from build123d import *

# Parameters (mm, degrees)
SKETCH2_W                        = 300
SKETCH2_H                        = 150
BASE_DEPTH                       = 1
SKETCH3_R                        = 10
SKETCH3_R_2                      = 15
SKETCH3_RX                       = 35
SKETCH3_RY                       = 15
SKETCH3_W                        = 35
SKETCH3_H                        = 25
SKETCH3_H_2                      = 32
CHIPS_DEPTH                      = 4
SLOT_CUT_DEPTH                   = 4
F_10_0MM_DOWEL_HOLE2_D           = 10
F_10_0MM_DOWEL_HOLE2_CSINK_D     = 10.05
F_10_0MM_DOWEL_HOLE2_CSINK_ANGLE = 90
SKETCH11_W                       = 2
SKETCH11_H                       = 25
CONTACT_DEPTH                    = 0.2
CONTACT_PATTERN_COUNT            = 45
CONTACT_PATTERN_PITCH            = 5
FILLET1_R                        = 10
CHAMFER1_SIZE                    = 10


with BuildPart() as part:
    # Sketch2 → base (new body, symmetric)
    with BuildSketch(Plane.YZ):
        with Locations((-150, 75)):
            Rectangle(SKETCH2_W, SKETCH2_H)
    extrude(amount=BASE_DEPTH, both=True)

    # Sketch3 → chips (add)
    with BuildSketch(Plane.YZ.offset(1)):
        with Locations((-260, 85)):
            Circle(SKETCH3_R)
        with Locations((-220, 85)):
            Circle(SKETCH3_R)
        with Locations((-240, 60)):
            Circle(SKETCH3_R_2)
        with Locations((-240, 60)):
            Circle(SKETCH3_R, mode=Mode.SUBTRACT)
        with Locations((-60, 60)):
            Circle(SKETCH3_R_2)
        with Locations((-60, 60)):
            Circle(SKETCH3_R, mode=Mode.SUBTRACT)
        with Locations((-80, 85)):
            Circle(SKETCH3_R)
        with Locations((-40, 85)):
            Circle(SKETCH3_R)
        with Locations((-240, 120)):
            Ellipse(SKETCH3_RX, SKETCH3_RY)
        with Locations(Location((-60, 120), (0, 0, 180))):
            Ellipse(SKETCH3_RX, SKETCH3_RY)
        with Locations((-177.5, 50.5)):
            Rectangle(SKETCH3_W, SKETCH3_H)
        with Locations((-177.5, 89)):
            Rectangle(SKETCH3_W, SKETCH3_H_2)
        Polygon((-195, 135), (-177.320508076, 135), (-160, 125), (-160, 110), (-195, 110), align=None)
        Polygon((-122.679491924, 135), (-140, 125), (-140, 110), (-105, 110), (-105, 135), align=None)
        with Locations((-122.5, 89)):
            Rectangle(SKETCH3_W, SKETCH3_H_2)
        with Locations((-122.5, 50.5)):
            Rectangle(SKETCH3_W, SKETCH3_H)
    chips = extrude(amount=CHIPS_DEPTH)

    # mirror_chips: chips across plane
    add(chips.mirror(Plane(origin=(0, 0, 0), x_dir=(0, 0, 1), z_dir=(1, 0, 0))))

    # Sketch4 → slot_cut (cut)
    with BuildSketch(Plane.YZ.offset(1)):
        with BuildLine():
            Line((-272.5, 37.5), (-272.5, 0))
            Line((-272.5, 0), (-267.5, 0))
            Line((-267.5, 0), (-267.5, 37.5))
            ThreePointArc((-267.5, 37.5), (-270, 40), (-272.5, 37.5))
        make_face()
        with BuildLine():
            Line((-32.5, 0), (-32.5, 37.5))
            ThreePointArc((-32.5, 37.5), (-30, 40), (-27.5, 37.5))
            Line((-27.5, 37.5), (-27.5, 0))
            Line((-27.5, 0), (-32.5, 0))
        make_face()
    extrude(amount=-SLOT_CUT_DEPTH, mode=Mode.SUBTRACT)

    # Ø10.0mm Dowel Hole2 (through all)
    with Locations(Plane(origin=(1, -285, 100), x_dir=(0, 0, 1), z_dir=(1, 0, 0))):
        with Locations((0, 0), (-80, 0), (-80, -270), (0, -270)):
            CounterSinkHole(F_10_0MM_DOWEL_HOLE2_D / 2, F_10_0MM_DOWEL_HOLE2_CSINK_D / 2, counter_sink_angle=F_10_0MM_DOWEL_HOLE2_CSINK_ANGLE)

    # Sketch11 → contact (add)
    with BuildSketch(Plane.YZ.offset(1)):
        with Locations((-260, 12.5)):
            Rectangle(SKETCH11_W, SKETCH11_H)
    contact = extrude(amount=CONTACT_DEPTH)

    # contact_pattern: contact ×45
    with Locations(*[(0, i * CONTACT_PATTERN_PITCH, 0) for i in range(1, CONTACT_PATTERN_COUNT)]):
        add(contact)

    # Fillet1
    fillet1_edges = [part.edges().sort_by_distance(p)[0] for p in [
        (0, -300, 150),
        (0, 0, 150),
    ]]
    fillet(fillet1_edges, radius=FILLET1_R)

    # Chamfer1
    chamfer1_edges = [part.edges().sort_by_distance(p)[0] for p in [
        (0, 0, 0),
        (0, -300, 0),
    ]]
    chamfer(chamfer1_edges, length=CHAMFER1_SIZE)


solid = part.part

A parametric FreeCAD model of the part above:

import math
import FreeCAD as App
import Part
import Sketcher

V = App.Vector
Q = App.Units.Quantity


def edges_at(feature, points):
    """Names of the edges that pass closest to the given points."""
    edges = feature.Shape.Edges
    near = lambda p: min(range(len(edges)), key=lambda i: edges[i].distToShape(Part.Vertex(*p))[0])
    return sorted({f"Edge{near(p) + 1}" for p in points})


def add_polygon(sketch, points):
    """Adds a closed chain of lines whose ends are joined by coincident constraints."""
    first, n = sketch.GeometryCount, len(points)
    for a, b in zip(points, points[1:] + points[:1]):
        sketch.addGeometry(Part.LineSegment(App.Vector(*a, 0), App.Vector(*b, 0)), False)
    for i in range(n):
        sketch.addConstraint(Sketcher.Constraint("Coincident", first + i, 2, first + (i + 1) % n, 1))

doc = App.newDocument("Part")
body = doc.addObject("PartDesign::Body", "Body")

# Sketch on YZ plane
sketch1 = body.newObject("Sketcher::SketchObject", "Sketch")
sketch1.AttachmentSupport = (doc.getObject("YZ_Plane"), [""])
sketch1.MapMode = "FlatFace"
add_polygon(sketch1, [(-300, 150), (-300, 0), (0, 0), (0, 150)])  # lines 0-3
sketch1.addConstraint(Sketcher.Constraint("Vertical", 0))
sketch1.addConstraint(Sketcher.Constraint("Horizontal", 1))
sketch1.addConstraint(Sketcher.Constraint("Vertical", 2))
sketch1.addConstraint(Sketcher.Constraint("Horizontal", 3))
sketch1.addConstraint(Sketcher.Constraint("Coincident", 1, 2, -1, 1))
sketch1.addConstraint(Sketcher.Constraint("DistanceX", 1, 1, 1, 2, Q("300 mm")))
sketch1.addConstraint(Sketcher.Constraint("DistanceY", 0, 2, 0, 1, Q("150 mm")))
pad1 = body.newObject("PartDesign::Pad", "Pad")
pad1.Profile = sketch1
pad1.Length = 2
pad1.Midplane = True

# Sketch on YZ plane
sketch2 = body.newObject("Sketcher::SketchObject", "Sketch001")
sketch2.AttachmentSupport = (doc.getObject("YZ_Plane"), [""])
sketch2.MapMode = "FlatFace"
sketch2.AttachmentOffset = App.Placement(V(0, 0, 1), App.Rotation())
sketch2.addGeometry(Part.Circle(V(-260, 85, 0), V(0, 0, 1), 10), False)  # 0
sketch2.addGeometry(Part.Circle(V(-220, 85, 0), V(0, 0, 1), 10), False)  # 1
sketch2.addGeometry(Part.Circle(V(-240, 60, 0), V(0, 0, 1), 15), False)  # 2
sketch2.addGeometry(Part.Circle(V(-240, 60, 0), V(0, 0, 1), 10), False)  # 3
sketch2.addGeometry(Part.Circle(V(-60, 60, 0), V(0, 0, 1), 15), False)  # 4
sketch2.addGeometry(Part.Circle(V(-60, 60, 0), V(0, 0, 1), 10), False)  # 5
sketch2.addGeometry(Part.Circle(V(-80, 85, 0), V(0, 0, 1), 10), False)  # 6
sketch2.addGeometry(Part.Circle(V(-40, 85, 0), V(0, 0, 1), 10), False)  # 7
sketch2.addGeometry(Part.Ellipse(V(-205, 120, 0), V(-240, 135, 0), V(-240, 120, 0)), False)  # 8
sketch2.addGeometry(Part.Ellipse(V(-95, 120, 0), V(-60, 105, 0), V(-60, 120, 0)), False)  # 9
add_polygon(sketch2, [(-195, 63), (-195, 38), (-160, 38), (-160, 63)])  # lines 10-13
add_polygon(sketch2, [(-195, 105), (-195, 73), (-160, 73), (-160, 105)])  # lines 14-17
add_polygon(sketch2, [(-177.320508, 135), (-195, 135), (-195, 110), (-160, 110), (-160, 125)])  # lines 18-22
add_polygon(sketch2, [(-122.679492, 135), (-140, 125), (-140, 110), (-105, 110), (-105, 135)])  # lines 23-27
add_polygon(sketch2, [(-140, 105), (-140, 73), (-105, 73), (-105, 105)])  # lines 28-31
add_polygon(sketch2, [(-140, 63), (-140, 38), (-105, 38), (-105, 63)])  # lines 32-35
sketch2.addConstraint(Sketcher.Constraint("Block", 8))
sketch2.addConstraint(Sketcher.Constraint("Block", 9))
sketch2.addConstraint(Sketcher.Constraint("Vertical", 10))
sketch2.addConstraint(Sketcher.Constraint("Horizontal", 11))
sketch2.addConstraint(Sketcher.Constraint("Vertical", 12))
sketch2.addConstraint(Sketcher.Constraint("Horizontal", 13))
sketch2.addConstraint(Sketcher.Constraint("Vertical", 14))
sketch2.addConstraint(Sketcher.Constraint("Horizontal", 15))
sketch2.addConstraint(Sketcher.Constraint("Vertical", 16))
sketch2.addConstraint(Sketcher.Constraint("Horizontal", 17))
sketch2.addConstraint(Sketcher.Constraint("Horizontal", 18))
sketch2.addConstraint(Sketcher.Constraint("Vertical", 19))
sketch2.addConstraint(Sketcher.Constraint("Horizontal", 20))
sketch2.addConstraint(Sketcher.Constraint("Vertical", 21))
sketch2.addConstraint(Sketcher.Constraint("Vertical", 24))
sketch2.addConstraint(Sketcher.Constraint("Horizontal", 25))
sketch2.addConstraint(Sketcher.Constraint("Vertical", 26))
sketch2.addConstraint(Sketcher.Constraint("Horizontal", 27))
sketch2.addConstraint(Sketcher.Constraint("Vertical", 28))
sketch2.addConstraint(Sketcher.Constraint("Horizontal", 29))
sketch2.addConstraint(Sketcher.Constraint("Vertical", 30))
sketch2.addConstraint(Sketcher.Constraint("Horizontal", 31))
sketch2.addConstraint(Sketcher.Constraint("Vertical", 32))
sketch2.addConstraint(Sketcher.Constraint("Horizontal", 33))
sketch2.addConstraint(Sketcher.Constraint("Vertical", 34))
sketch2.addConstraint(Sketcher.Constraint("Horizontal", 35))
sketch2.addConstraint(Sketcher.Constraint("Coincident", 3, 3, 2, 3))
sketch2.addConstraint(Sketcher.Constraint("Coincident", 5, 3, 4, 3))
sketch2.addConstraint(Sketcher.Constraint("Equal", 0, 1))
sketch2.addConstraint(Sketcher.Constraint("Equal", 1, 3))
sketch2.addConstraint(Sketcher.Constraint("Equal", 2, 4))
sketch2.addConstraint(Sketcher.Constraint("Equal", 3, 5))
sketch2.addConstraint(Sketcher.Constraint("Equal", 5, 6))
sketch2.addConstraint(Sketcher.Constraint("Equal", 6, 7))
sketch2.addConstraint(Sketcher.Constraint("Horizontal", 0, 3, 1, 3))
sketch2.addConstraint(Sketcher.Constraint("Horizontal", 3, 3, 4, 3))
sketch2.addConstraint(Sketcher.Constraint("Horizontal", 1, 3, 6, 3))
sketch2.addConstraint(Sketcher.Constraint("Horizontal", 6, 3, 7, 3))
sketch2.addConstraint(Sketcher.Constraint("Horizontal", 21, 2, 23, 2))
sketch2.addConstraint(Sketcher.Constraint("Horizontal", 20, 2, 24, 2))
sketch2.addConstraint(Sketcher.Constraint("Horizontal", 22, 2, 26, 2))
sketch2.addConstraint(Sketcher.Constraint("Horizontal", 15, 2, 28, 2))
sketch2.addConstraint(Sketcher.Constraint("Horizontal", 17, 2, 30, 2))
sketch2.addConstraint(Sketcher.Constraint("Horizontal", 11, 2, 32, 2))
sketch2.addConstraint(Sketcher.Constraint("Horizontal", 13, 2, 34, 2))
sketch2.addConstraint(Sketcher.Constraint("Vertical", 13, 2, 14, 2))
sketch2.addConstraint(Sketcher.Constraint("Vertical", 12, 2, 15, 2))
sketch2.addConstraint(Sketcher.Constraint("Vertical", 17, 2, 18, 2))
sketch2.addConstraint(Sketcher.Constraint("Vertical", 16, 2, 20, 2))
sketch2.addConstraint(Sketcher.Constraint("Vertical", 24, 2, 28, 2))
sketch2.addConstraint(Sketcher.Constraint("Vertical", 26, 2, 29, 2))
sketch2.addConstraint(Sketcher.Constraint("Vertical", 31, 2, 32, 2))
sketch2.addConstraint(Sketcher.Constraint("Vertical", 30, 2, 33, 2))
sketch2.addConstraint(Sketcher.Constraint("Equal", 20, 25))
sketch2.addConstraint(Sketcher.Constraint("Equal", 18, 27))
sketch2.addConstraint(Sketcher.Constraint("Equal", 12, 19))
sketch2.addConstraint(Sketcher.Constraint("Diameter", 0, Q("20 mm")))
sketch2.addConstraint(Sketcher.Constraint("Diameter", 2, Q("30 mm")))
sketch2.addConstraint(Sketcher.Constraint("DistanceX", 11, 1, 11, 2, Q("35 mm")))
sketch2.addConstraint(Sketcher.Constraint("DistanceY", 10, 2, 10, 1, Q("25 mm")))
sketch2.addConstraint(Sketcher.Constraint("DistanceY", 14, 2, 14, 1, Q("32 mm")))
sketch2.addConstraint(Sketcher.Constraint("DistanceY", 21, 1, 21, 2, Q("15 mm")))
sketch2.addConstraint(Sketcher.Constraint("Angle", 22, Q("150 deg")))
sketch2.addConstraint(Sketcher.Constraint("DistanceX", 0, 3, -1, 1, Q("260 mm")))
sketch2.addConstraint(Sketcher.Constraint("DistanceY", -1, 1, 0, 3, Q("85 mm")))
sketch2.addConstraint(Sketcher.Constraint("DistanceX", 1, 3, -1, 1, Q("220 mm")))
sketch2.addConstraint(Sketcher.Constraint("DistanceX", 2, 3, -1, 1, Q("240 mm")))
sketch2.addConstraint(Sketcher.Constraint("DistanceY", -1, 1, 2, 3, Q("60 mm")))
sketch2.addConstraint(Sketcher.Constraint("DistanceX", 4, 3, -1, 1, Q("60 mm")))
sketch2.addConstraint(Sketcher.Constraint("DistanceX", 6, 3, -1, 1, Q("80 mm")))
sketch2.addConstraint(Sketcher.Constraint("DistanceX", 7, 3, -1, 1, Q("40 mm")))
sketch2.addConstraint(Sketcher.Constraint("DistanceX", 10, 2, -1, 1, Q("195 mm")))
sketch2.addConstraint(Sketcher.Constraint("DistanceY", -1, 1, 10, 2, Q("38 mm")))
sketch2.addConstraint(Sketcher.Constraint("DistanceY", -1, 1, 14, 2, Q("73 mm")))
sketch2.addConstraint(Sketcher.Constraint("DistanceY", -1, 1, 18, 2, Q("135 mm")))
sketch2.addConstraint(Sketcher.Constraint("DistanceX", 23, 2, -1, 1, Q("140 mm")))
pad2 = body.newObject("PartDesign::Pad", "Pad001")
pad2.Profile = sketch2
pad2.Length = 4
doc.recompute()

mirrored = body.newObject("PartDesign::Mirrored", "Mirrored")
mirrored.Originals = [pad2]
mirrored.MirrorPlane = (doc.getObject("YZ_Plane"), [""])
body.Tip = mirrored

# Sketch on YZ plane
sketch3 = body.newObject("Sketcher::SketchObject", "Sketch002")
sketch3.AttachmentSupport = (doc.getObject("YZ_Plane"), [""])
sketch3.MapMode = "FlatFace"
sketch3.AttachmentOffset = App.Placement(V(0, 0, 1), App.Rotation())
sketch3.addGeometry(Part.LineSegment(V(-272.5, 37.5, 0), V(-272.5, 0, 0)), False)
sketch3.addGeometry(Part.LineSegment(V(-272.5, 0, 0), V(-267.5, 0, 0)), False)
sketch3.addGeometry(Part.LineSegment(V(-267.5, 0, 0), V(-267.5, 37.5, 0)), False)
sketch3.addGeometry(Part.ArcOfCircle(Part.Circle(V(-270, 37.5, 0), V(0, 0, 1), 2.5), math.radians(0), math.radians(180)), False)
sketch3.addGeometry(Part.LineSegment(V(-32.5, 37.5, 0), V(-32.5, 0, 0)), False)
sketch3.addGeometry(Part.LineSegment(V(-32.5, 0, 0), V(-27.5, 0, 0)), False)
sketch3.addGeometry(Part.LineSegment(V(-27.5, 0, 0), V(-27.5, 37.5, 0)), False)
sketch3.addGeometry(Part.ArcOfCircle(Part.Circle(V(-30, 37.5, 0), V(0, 0, 1), 2.5), math.radians(0), math.radians(180)), False)
sketch3.addConstraint(Sketcher.Constraint("Coincident", 0, 2, 1, 1))
sketch3.addConstraint(Sketcher.Constraint("Coincident", 1, 2, 2, 1))
sketch3.addConstraint(Sketcher.Constraint("Tangent", 2, 2, 3, 1))
sketch3.addConstraint(Sketcher.Constraint("Tangent", 3, 2, 0, 1))
sketch3.addConstraint(Sketcher.Constraint("Coincident", 4, 2, 5, 1))
sketch3.addConstraint(Sketcher.Constraint("Coincident", 5, 2, 6, 1))
sketch3.addConstraint(Sketcher.Constraint("Tangent", 6, 2, 7, 1))
sketch3.addConstraint(Sketcher.Constraint("Tangent", 7, 2, 4, 1))
sketch3.addConstraint(Sketcher.Constraint("Vertical", 0))
sketch3.addConstraint(Sketcher.Constraint("Horizontal", 1))
sketch3.addConstraint(Sketcher.Constraint("Vertical", 2))
sketch3.addConstraint(Sketcher.Constraint("Vertical", 4))
sketch3.addConstraint(Sketcher.Constraint("Horizontal", 5))
sketch3.addConstraint(Sketcher.Constraint("Vertical", 6))
sketch3.addConstraint(Sketcher.Constraint("Equal", 3, 7))
sketch3.addConstraint(Sketcher.Constraint("PointOnObject", 0, 2, -1))
sketch3.addConstraint(Sketcher.Constraint("PointOnObject", 4, 2, -1))
sketch3.addConstraint(Sketcher.Constraint("Horizontal", 3, 3, 7, 3))
sketch3.addConstraint(Sketcher.Constraint("Radius", 3, Q("2.5 mm")))
sketch3.addConstraint(Sketcher.Constraint("DistanceY", 0, 2, 0, 1, Q("37.5 mm")))
sketch3.addConstraint(Sketcher.Constraint("DistanceX", 3, 3, -1, 1, Q("270 mm")))
sketch3.addConstraint(Sketcher.Constraint("DistanceX", 7, 3, -1, 1, Q("30 mm")))
pocket1 = body.newObject("PartDesign::Pocket", "Pocket")
pocket1.Profile = sketch3
pocket1.Length = 4

# Sketch on YZ plane
sketch4 = body.newObject("Sketcher::SketchObject", "Sketch003")
sketch4.AttachmentSupport = (doc.getObject("YZ_Plane"), [""])
sketch4.MapMode = "FlatFace"
sketch4.AttachmentOffset = App.Placement(V(0, 0, 1), App.Rotation())
sketch4.addGeometry(Part.Circle(V(-285, 100, 0), V(0, 0, 1), 5), False)
sketch4.addGeometry(Part.Circle(V(-285, 20, 0), V(0, 0, 1), 5), False)
sketch4.addGeometry(Part.Circle(V(-15, 20, 0), V(0, 0, 1), 5), False)
sketch4.addGeometry(Part.Circle(V(-15, 100, 0), V(0, 0, 1), 5), False)
sketch4.addConstraint(Sketcher.Constraint("Equal", 0, 1))
sketch4.addConstraint(Sketcher.Constraint("Equal", 1, 2))
sketch4.addConstraint(Sketcher.Constraint("Equal", 2, 3))
sketch4.addConstraint(Sketcher.Constraint("Horizontal", 1, 3, 2, 3))
sketch4.addConstraint(Sketcher.Constraint("Horizontal", 0, 3, 3, 3))
sketch4.addConstraint(Sketcher.Constraint("Vertical", 0, 3, 1, 3))
sketch4.addConstraint(Sketcher.Constraint("Vertical", 2, 3, 3, 3))
sketch4.addConstraint(Sketcher.Constraint("Diameter", 0, Q("10 mm")))
sketch4.addConstraint(Sketcher.Constraint("DistanceX", 0, 3, -1, 1, Q("285 mm")))
sketch4.addConstraint(Sketcher.Constraint("DistanceY", -1, 1, 0, 3, Q("100 mm")))
sketch4.addConstraint(Sketcher.Constraint("DistanceY", -1, 1, 1, 3, Q("20 mm")))
sketch4.addConstraint(Sketcher.Constraint("DistanceX", 2, 3, -1, 1, Q("15 mm")))
doc.recompute()
hole = body.newObject("PartDesign::Hole", "Hole")
hole.Profile = sketch4
hole.ThreadType = "None"
hole.Diameter = 10
hole.DepthType = "ThroughAll"
hole.HoleCutType = "Countersink"
hole.HoleCutDiameter = 10.05
hole.HoleCutCountersinkAngle = 90

# Sketch on YZ plane
sketch5 = body.newObject("Sketcher::SketchObject", "Sketch004")
sketch5.AttachmentSupport = (doc.getObject("YZ_Plane"), [""])
sketch5.MapMode = "FlatFace"
sketch5.AttachmentOffset = App.Placement(V(0, 0, 1), App.Rotation())
add_polygon(sketch5, [(-261, 25), (-261, 0), (-259, 0), (-259, 25)])  # lines 0-3
sketch5.addConstraint(Sketcher.Constraint("Vertical", 0))
sketch5.addConstraint(Sketcher.Constraint("Horizontal", 1))
sketch5.addConstraint(Sketcher.Constraint("Vertical", 2))
sketch5.addConstraint(Sketcher.Constraint("Horizontal", 3))
sketch5.addConstraint(Sketcher.Constraint("PointOnObject", 0, 2, -1))
sketch5.addConstraint(Sketcher.Constraint("DistanceX", 1, 1, 1, 2, Q("2 mm")))
sketch5.addConstraint(Sketcher.Constraint("DistanceY", 0, 2, 0, 1, Q("25 mm")))
sketch5.addConstraint(Sketcher.Constraint("DistanceX", 0, 2, -1, 1, Q("261 mm")))
pad3 = body.newObject("PartDesign::Pad", "Pad002")
pad3.Profile = sketch5
pad3.Length = 0.2
doc.recompute()

linearpattern = body.newObject("PartDesign::LinearPattern", "LinearPattern")
linearpattern.Originals = [pad3]
linearpattern.Direction = (doc.getObject("Y_Axis"), [""])
linearpattern.Mode = "offset"
linearpattern.Offset = 5
linearpattern.Occurrences = 45
body.Tip = linearpattern
doc.recompute()

fillet = body.newObject("PartDesign::Fillet", "Fillet")
fillet.Base = (linearpattern, edges_at(linearpattern, [(0, -300, 150), (0, 0, 150)]))
fillet.Radius = 10
doc.recompute()

chamfer = body.newObject("PartDesign::Chamfer", "Chamfer")
chamfer.Base = (fillet, edges_at(fillet, [(0, 0, 0), (0, -300, 0)]))
chamfer.Size = 10

doc.recompute()
